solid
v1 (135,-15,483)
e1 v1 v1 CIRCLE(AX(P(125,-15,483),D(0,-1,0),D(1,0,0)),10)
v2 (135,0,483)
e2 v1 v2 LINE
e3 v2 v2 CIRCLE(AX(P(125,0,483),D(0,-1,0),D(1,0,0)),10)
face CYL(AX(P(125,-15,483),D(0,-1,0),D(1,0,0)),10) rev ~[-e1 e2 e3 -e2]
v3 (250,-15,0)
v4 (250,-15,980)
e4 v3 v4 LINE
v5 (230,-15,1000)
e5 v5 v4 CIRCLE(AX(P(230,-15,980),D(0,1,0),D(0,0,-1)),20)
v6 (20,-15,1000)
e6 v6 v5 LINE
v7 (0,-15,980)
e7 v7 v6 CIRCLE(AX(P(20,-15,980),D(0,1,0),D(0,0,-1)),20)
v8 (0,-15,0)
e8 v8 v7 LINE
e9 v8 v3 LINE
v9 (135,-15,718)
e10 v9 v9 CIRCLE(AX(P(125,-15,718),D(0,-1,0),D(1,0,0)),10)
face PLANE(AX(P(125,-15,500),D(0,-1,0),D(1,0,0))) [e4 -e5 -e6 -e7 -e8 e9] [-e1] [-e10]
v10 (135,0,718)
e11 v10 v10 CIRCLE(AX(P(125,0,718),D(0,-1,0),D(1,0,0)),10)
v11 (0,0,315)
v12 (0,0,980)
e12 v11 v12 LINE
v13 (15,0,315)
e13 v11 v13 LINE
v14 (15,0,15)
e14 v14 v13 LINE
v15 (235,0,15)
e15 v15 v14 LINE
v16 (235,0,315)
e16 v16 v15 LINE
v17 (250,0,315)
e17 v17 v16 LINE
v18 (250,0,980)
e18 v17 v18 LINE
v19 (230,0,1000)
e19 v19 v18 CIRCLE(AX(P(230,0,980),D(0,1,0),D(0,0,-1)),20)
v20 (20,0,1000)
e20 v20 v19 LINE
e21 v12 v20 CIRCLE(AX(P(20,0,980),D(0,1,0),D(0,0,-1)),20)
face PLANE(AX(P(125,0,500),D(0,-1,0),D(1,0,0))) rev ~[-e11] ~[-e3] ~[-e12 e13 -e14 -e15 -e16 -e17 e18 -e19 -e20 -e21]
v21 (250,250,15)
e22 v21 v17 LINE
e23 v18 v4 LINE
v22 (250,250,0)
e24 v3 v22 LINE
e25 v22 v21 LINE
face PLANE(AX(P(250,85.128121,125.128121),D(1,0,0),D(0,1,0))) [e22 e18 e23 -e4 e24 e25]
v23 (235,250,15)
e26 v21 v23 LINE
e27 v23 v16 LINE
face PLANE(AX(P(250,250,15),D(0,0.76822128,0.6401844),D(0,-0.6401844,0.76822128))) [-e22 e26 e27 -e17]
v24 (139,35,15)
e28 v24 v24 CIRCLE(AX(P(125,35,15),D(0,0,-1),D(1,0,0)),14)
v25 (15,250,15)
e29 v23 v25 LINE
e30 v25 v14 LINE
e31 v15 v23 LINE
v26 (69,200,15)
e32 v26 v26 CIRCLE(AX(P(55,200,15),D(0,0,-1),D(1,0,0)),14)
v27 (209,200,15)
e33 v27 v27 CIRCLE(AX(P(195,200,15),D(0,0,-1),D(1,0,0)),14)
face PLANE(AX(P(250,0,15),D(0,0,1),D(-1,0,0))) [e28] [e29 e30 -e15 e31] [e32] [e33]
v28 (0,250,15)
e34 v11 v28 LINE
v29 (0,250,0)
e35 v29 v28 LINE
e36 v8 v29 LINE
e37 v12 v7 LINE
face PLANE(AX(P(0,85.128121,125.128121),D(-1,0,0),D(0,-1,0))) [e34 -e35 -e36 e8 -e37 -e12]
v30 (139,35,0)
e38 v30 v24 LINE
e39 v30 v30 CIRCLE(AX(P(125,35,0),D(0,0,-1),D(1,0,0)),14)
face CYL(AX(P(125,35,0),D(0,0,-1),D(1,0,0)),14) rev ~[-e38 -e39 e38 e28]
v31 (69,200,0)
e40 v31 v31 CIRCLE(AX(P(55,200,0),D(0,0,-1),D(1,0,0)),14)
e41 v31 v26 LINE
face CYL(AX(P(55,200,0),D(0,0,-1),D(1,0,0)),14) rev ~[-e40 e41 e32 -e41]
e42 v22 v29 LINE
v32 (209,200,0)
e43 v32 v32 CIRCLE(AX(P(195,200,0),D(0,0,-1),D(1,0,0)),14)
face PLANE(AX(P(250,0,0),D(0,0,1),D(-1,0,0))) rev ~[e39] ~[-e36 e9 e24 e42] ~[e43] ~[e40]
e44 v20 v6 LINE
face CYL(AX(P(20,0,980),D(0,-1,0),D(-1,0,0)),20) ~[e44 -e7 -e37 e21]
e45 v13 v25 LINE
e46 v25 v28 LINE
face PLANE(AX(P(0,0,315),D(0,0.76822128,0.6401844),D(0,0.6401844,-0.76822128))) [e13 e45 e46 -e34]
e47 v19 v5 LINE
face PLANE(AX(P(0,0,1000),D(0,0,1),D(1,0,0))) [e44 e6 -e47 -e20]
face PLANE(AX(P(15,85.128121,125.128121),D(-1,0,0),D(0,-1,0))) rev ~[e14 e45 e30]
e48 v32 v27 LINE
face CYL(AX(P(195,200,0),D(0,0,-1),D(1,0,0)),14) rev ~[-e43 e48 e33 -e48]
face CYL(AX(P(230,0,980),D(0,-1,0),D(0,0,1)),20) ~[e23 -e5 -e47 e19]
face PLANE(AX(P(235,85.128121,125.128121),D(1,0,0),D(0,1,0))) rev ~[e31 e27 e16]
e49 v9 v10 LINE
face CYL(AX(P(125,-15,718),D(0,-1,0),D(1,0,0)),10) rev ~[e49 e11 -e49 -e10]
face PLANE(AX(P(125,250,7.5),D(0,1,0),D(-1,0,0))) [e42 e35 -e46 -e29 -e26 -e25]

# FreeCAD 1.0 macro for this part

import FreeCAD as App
import Part
import Sketcher

V = App.Vector
Q = App.Units.Quantity


def edges_at(feature, points):
    """Names of the edges that pass closest to the given points."""
    edges = feature.Shape.Edges
    near = lambda p: min(range(len(edges)), key=lambda i: edges[i].distToShape(Part.Vertex(*p))[0])
    return sorted({f"Edge{near(p) + 1}" for p in points})


def add_polygon(sketch, points):
    """Adds a closed chain of lines whose ends are joined by coincident constraints."""
    first, n = sketch.GeometryCount, len(points)
    for a, b in zip(points, points[1:] + points[:1]):
        sketch.addGeometry(Part.LineSegment(App.Vector(*a, 0), App.Vector(*b, 0)), False)
    for i in range(n):
        sketch.addConstraint(Sketcher.Constraint("Coincident", first + i, 2, first + (i + 1) % n, 1))

doc = App.newDocument("Part")
body = doc.addObject("PartDesign::Body", "Body")

sketch1 = doc.addObject("Sketcher::SketchObject", "Sketch")
body.addObject(sketch1)
sketch1.AttachmentSupport = (doc.XZ_Plane, [""])
sketch1.MapMode = "FlatFace"
add_polygon(sketch1, [(0, 1000), (0, 0), (250, 0), (250, 1000)])
sketch1.addConstraint(Sketcher.Constraint("Vertical", 0))
sketch1.addConstraint(Sketcher.Constraint("Horizontal", 1))
sketch1.addConstraint(Sketcher.Constraint("Vertical", 2))
sketch1.addConstraint(Sketcher.Constraint("Horizontal", 3))
sketch1.addConstraint(Sketcher.Constraint("Coincident", 0, 2, -1, 1))
sketch1.addConstraint(Sketcher.Constraint("DistanceX", 1, 1, 1, 2, Q("250 mm")))
sketch1.addConstraint(Sketcher.Constraint("DistanceY", 0, 2, 0, 1, Q("1000 mm")))
pad1 = doc.addObject("PartDesign::Pad", "Pad")
body.addObject(pad1)
pad1.Profile = sketch1
pad1.Length = 15
doc.recompute()

fillet = doc.addObject("PartDesign::Fillet", "Fillet")
body.addObject(fillet)
fillet.Base = (pad1, edges_at(pad1, [(0, -7.5, 1000)]))
fillet.Radius = 20
doc.recompute()

fillet2 = doc.addObject("PartDesign::Fillet", "Fillet001")
body.addObject(fillet2)
fillet2.Base = (fillet, edges_at(fillet, [(250, -7.5, 1000)]))
fillet2.Radius = 20

sketch2 = doc.addObject("Sketcher::SketchObject", "Sketch001")
body.addObject(sketch2)
sketch2.AttachmentSupport = (doc.XZ_Plane, [""])
sketch2.MapMode = "FlatFace"
add_polygon(sketch2, [(250, 15), (250, 0), (0, 0), (0, 15)])
sketch2.addConstraint(Sketcher.Constraint("Vertical", 0))
sketch2.addConstraint(Sketcher.Constraint("Horizontal", 1))
sketch2.addConstraint(Sketcher.Constraint("Vertical", 2))
sketch2.addConstraint(Sketcher.Constraint("Horizontal", 3))
sketch2.addConstraint(Sketcher.Constraint("Coincident", 1, 2, -1, 1))
sketch2.addConstraint(Sketcher.Constraint("DistanceX", 1, 2, 1, 1, Q("250 mm")))
sketch2.addConstraint(Sketcher.Constraint("DistanceY", 0, 2, 0, 1, Q("15 mm")))
pad2 = doc.addObject("PartDesign::Pad", "Pad001")
body.addObject(pad2)
pad2.Profile = sketch2
pad2.Length = 250
pad2.Reversed = True

sketch3 = doc.addObject("Sketcher::SketchObject", "Sketch002")
body.addObject(sketch3)
sketch3.AttachmentSupport = (doc.YZ_Plane, [""])
sketch3.MapMode = "FlatFace"
add_polygon(sketch3, [(0, 315), (250, 15), (0, 15)])
sketch3.addConstraint(Sketcher.Constraint("Horizontal", 1))
sketch3.addConstraint(Sketcher.Constraint("Vertical", 2))
sketch3.addConstraint(Sketcher.Constraint("PointOnObject", 1, 2, -2))
sketch3.addConstraint(Sketcher.Constraint("DistanceX", 1, 2, 1, 1, Q("250 mm")))
sketch3.addConstraint(Sketcher.Constraint("DistanceY", 2, 1, 2, 2, Q("300 mm")))
sketch3.addConstraint(Sketcher.Constraint("DistanceY", -1, 1, 0, 2, Q("15 mm")))
pad3 = doc.addObject("PartDesign::Pad", "Pad002")
body.addObject(pad3)
pad3.Profile = sketch3
pad3.Length = 15

sketch4 = doc.addObject("Sketcher::SketchObject", "Sketch003")
body.addObject(sketch4)
sketch4.AttachmentSupport = (doc.YZ_Plane, [""])
sketch4.MapMode = "FlatFace"
sketch4.AttachmentOffset = App.Placement(V(0, 0, 250), App.Rotation())
add_polygon(sketch4, [(0, 15), (250, 15), (0, 315)])
sketch4.addConstraint(Sketcher.Constraint("Horizontal", 0))
sketch4.addConstraint(Sketcher.Constraint("Vertical", 2))
sketch4.addConstraint(Sketcher.Constraint("PointOnObject", 1, 2, -2))
sketch4.addConstraint(Sketcher.Constraint("DistanceX", 0, 1, 0, 2, Q("250 mm")))
sketch4.addConstraint(Sketcher.Constraint("DistanceY", 2, 2, 2, 1, Q("300 mm")))
sketch4.addConstraint(Sketcher.Constraint("DistanceY", -1, 1, 0, 2, Q("15 mm")))
pad4 = doc.addObject("PartDesign::Pad", "Pad003")
body.addObject(pad4)
pad4.Profile = sketch4
pad4.Length = 15
pad4.Reversed = True

sketch5 = doc.addObject("Sketcher::SketchObject", "Sketch004")
body.addObject(sketch5)
sketch5.AttachmentSupport = (doc.XY_Plane, [""])
sketch5.MapMode = "FlatFace"
sketch5.addGeometry(Part.Circle(V(125, 35, 0), V(0, 0, 1), 14), False)
sketch5.addGeometry(Part.Circle(V(195, 200, 0), V(0, 0, 1), 14), False)
sketch5.addGeometry(Part.Circle(V(55, 200, 0), V(0, 0, 1), 14), False)
sketch5.addConstraint(Sketcher.Constraint("Equal", 0, 1))
sketch5.addConstraint(Sketcher.Constraint("Equal", 1, 2))
sketch5.addConstraint(Sketcher.Constraint("Horizontal", 1, 3, 2, 3))
sketch5.addConstraint(Sketcher.Constraint("Diameter", 0, Q("28 mm")))
sketch5.addConstraint(Sketcher.Constraint("DistanceX", -1, 1, 0, 3, Q("125 mm")))
sketch5.addConstraint(Sketcher.Constraint("DistanceY", -1, 1, 0, 3, Q("35 mm")))
sketch5.addConstraint(Sketcher.Constraint("DistanceX", -1, 1, 1, 3, Q("195 mm")))
sketch5.addConstraint(Sketcher.Constraint("DistanceY", -1, 1, 1, 3, Q("200 mm")))
sketch5.addConstraint(Sketcher.Constraint("DistanceX", -1, 1, 2, 3, Q("55 mm")))
pocket1 = doc.addObject("PartDesign::Pocket", "Pocket")
body.addObject(pocket1)
pocket1.Profile = sketch5
pocket1.Length = 15
pocket1.Reversed = True

sketch6 = doc.addObject("Sketcher::SketchObject", "Sketch005")
body.addObject(sketch6)
sketch6.AttachmentSupport = (doc.XZ_Plane, [""])
sketch6.MapMode = "FlatFace"
sketch6.AttachmentOffset = App.Placement(V(0, 0, 15), App.Rotation())
sketch6.addGeometry(Part.Circle(V(125, 718, 0), V(0, 0, 1), 10), False)
sketch6.addGeometry(Part.Circle(V(125, 483, 0), V(0, 0, 1), 10), False)
sketch6.addConstraint(Sketcher.Constraint("Equal", 0, 1))
sketch6.addConstraint(Sketcher.Constraint("Vertical", 0, 3, 1, 3))
sketch6.addConstraint(Sketcher.Constraint("Diameter", 0, Q("20 mm")))
sketch6.addConstraint(Sketcher.Constraint("DistanceX", -1, 1, 0, 3, Q("125 mm")))
sketch6.addConstraint(Sketcher.Constraint("DistanceY", -1, 1, 0, 3, Q("718 mm")))
sketch6.addConstraint(Sketcher.Constraint("DistanceY", -1, 1, 1, 3, Q("483 mm")))
pocket2 = doc.addObject("PartDesign::Pocket", "Pocket001")
body.addObject(pocket2)
pocket2.Profile = sketch6
pocket2.Type = "ThroughAll"

doc.recompute()
